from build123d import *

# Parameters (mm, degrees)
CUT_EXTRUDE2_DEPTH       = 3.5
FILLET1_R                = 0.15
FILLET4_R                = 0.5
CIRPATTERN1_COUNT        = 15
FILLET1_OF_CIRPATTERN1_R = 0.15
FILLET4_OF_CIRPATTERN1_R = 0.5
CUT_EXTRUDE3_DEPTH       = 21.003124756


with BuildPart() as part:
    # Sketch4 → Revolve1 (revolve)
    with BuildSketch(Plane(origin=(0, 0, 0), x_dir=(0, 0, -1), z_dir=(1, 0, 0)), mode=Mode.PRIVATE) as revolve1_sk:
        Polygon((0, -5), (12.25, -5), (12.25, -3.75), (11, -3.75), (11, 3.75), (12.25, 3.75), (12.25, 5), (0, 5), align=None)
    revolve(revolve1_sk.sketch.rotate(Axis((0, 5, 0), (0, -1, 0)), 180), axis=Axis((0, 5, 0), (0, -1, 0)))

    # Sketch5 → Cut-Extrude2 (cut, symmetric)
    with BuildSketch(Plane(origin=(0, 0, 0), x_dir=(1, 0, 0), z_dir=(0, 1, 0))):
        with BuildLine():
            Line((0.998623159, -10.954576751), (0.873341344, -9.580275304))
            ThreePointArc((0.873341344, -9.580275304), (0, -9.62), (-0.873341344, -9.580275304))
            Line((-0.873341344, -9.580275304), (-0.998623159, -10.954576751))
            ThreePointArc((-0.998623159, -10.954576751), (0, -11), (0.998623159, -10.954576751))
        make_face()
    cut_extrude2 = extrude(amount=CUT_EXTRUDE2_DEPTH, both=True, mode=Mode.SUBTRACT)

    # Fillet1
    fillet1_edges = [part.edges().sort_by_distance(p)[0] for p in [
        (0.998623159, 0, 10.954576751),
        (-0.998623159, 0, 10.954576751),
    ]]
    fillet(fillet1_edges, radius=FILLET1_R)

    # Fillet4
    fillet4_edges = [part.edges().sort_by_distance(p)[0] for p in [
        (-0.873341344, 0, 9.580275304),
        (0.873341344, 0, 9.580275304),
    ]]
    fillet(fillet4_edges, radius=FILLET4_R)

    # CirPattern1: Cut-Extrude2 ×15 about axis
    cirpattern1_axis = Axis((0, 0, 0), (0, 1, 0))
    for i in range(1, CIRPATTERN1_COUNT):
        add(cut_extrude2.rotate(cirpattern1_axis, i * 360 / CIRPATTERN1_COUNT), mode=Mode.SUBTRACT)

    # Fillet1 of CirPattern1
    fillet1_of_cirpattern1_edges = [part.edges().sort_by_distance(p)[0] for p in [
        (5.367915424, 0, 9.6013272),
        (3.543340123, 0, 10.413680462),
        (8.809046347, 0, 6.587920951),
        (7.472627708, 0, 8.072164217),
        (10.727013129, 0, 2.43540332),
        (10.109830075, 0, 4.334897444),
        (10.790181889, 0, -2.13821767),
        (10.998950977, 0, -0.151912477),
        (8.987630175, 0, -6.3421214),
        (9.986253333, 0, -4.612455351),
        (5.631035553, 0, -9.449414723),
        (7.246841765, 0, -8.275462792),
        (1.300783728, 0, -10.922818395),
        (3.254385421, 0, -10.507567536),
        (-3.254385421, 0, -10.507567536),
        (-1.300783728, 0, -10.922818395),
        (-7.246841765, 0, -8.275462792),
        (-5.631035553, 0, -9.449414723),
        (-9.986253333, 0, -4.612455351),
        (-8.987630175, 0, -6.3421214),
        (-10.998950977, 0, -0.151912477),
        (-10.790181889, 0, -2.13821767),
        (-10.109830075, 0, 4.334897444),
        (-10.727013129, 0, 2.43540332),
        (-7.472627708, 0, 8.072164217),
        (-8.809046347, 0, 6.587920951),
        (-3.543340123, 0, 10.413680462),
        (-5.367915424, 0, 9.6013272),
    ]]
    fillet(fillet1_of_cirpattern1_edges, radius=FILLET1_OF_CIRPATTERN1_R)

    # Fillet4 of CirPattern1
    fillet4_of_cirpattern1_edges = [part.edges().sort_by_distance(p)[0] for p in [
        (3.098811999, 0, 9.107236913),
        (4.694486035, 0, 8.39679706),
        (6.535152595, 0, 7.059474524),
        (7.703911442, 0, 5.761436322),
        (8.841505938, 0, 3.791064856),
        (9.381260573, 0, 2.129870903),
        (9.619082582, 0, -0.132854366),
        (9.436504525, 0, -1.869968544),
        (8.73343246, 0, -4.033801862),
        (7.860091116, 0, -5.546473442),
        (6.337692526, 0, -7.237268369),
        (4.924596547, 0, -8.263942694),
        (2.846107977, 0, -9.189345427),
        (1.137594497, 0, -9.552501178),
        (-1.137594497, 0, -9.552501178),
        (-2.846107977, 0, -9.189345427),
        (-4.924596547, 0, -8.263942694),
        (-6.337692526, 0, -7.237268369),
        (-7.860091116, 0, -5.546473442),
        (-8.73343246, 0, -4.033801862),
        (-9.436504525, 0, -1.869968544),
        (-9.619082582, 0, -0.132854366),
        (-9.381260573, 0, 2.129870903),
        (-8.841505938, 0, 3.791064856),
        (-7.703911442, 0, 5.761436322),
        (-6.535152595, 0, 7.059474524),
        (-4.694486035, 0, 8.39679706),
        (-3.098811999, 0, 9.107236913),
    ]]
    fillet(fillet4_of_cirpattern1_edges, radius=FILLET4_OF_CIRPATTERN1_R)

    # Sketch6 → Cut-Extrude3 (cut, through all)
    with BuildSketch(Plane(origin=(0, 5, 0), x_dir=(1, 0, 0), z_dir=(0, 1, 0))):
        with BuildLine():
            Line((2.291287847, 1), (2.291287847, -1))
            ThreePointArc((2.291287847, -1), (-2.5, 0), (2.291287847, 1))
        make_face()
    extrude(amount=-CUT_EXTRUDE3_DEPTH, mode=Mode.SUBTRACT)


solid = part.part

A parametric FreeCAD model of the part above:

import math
import FreeCAD as App
import Part
import Sketcher


def edges_at(feature, points):
    """Names of the edges that pass closest to the given points."""
    edges = feature.Shape.Edges
    near = lambda p: min(range(len(edges)), key=lambda i: edges[i].distToShape(Part.Vertex(*p))[0])
    return sorted({f"Edge{near(p) + 1}" for p in points})


def add_polygon(sketch, points):
    """Adds a closed chain of lines whose ends are joined by coincident constraints."""
    first, n = sketch.GeometryCount, len(points)
    for a, b in zip(points, points[1:] + points[:1]):
        sketch.addGeometry(Part.LineSegment(App.Vector(*a, 0), App.Vector(*b, 0)), False)
    for i in range(n):
        sketch.addConstraint(Sketcher.Constraint("Coincident", first + i, 2, first + (i + 1) % n, 1))

doc = App.newDocument("Part")
body = doc.addObject("PartDesign::Body", "Body")

sketch1 = body.newObject("Sketcher::SketchObject", "Sketch")
sketch1.AttachmentSupport = (doc.getObject("YZ_Plane"), [""])
sketch1.MapMode = "FlatFace"
add_polygon(sketch1, [(-5, 0), (-5, -12.2), (-3.8, -12.2), (-3.8, -11), (3.8, -11), (3.8, -12.2), (5, -12.2), (5, 0)])
sketch1.addConstraint([
    Sketcher.Constraint("Vertical", 0),
    Sketcher.Constraint("Horizontal", 1),
    Sketcher.Constraint("Vertical", 2),
    Sketcher.Constraint("Horizontal", 3),
    Sketcher.Constraint("Vertical", 4),
    Sketcher.Constraint("Horizontal", 5),
    Sketcher.Constraint("Vertical", 6),
    Sketcher.Constraint("Horizontal", 7),
    Sketcher.Constraint("Symmetric", 6, 2, 7, 2, -1, 1),
    Sketcher.Constraint("Symmetric", 1, 2, 4, 2, -2),
    Sketcher.Constraint("Equal", 5, 2),
    Sketcher.Constraint("DistanceX", 7, 2, 7, 1, 10.0),
    Sketcher.Constraint("DistanceX", 3, 1, 3, 2, 7.5),
    Sketcher.Constraint("DistanceY", 2, 2, -1, 1, 11.0),
])
revolution = body.newObject("PartDesign::Revolution", "Revolution")
revolution.Profile = sketch1
revolution.ReferenceAxis = (sketch1, ["H_Axis"])
revolution.Angle = 360

sketch2 = body.newObject("Sketcher::SketchObject", "Sketch001")
sketch2.AttachmentSupport = (doc.getObject("XZ_Plane"), [""])
sketch2.MapMode = "FlatFace"
sketch2.addGeometry([
    Part.LineSegment(App.Vector(1, 11, 0), App.Vector(0.9, 9.6, 0)),
    Part.ArcOfCircle(Part.Circle(App.Vector(0, 0, 0), App.Vector(0, 0, 1), 9.6), math.radians(84.79), math.radians(95.21)),
    Part.LineSegment(App.Vector(-0.9, 9.6, 0), App.Vector(-1, 11, 0)),
    Part.ArcOfCircle(Part.Circle(App.Vector(0, 0, 0), App.Vector(0, 0, 1), 11), math.radians(84.79), math.radians(95.21)),
], False)
sketch2.addConstraint([
    Sketcher.Constraint("Coincident", 0, 2, 1, 1),
    Sketcher.Constraint("Coincident", 1, 2, 2, 1),
    Sketcher.Constraint("Coincident", 2, 2, 3, 2),
    Sketcher.Constraint("Coincident", 3, 1, 0, 1),
    Sketcher.Constraint("Coincident", 1, 3, -1, 1),
    Sketcher.Constraint("Coincident", 3, 3, -1, 1),
    Sketcher.Constraint("Horizontal", 0, 2, 1, 2),
    Sketcher.Constraint("Horizontal", 2, 2, 3, 1),
    Sketcher.Constraint("Radius", 3, 11.0),
    Sketcher.Constraint("Radius", 1, 9.62),
    Sketcher.Constraint("DistanceY", 1, 2, 2, 2, 1.374301),
    Sketcher.Constraint("DistanceX", -1, 1, 0, 2, 0.873341),
])
pocket1 = body.newObject("PartDesign::Pocket", "Pocket")
pocket1.Profile = sketch2
pocket1.Length = 7
pocket1.Midplane = True
doc.recompute()

fillet = body.newObject("PartDesign::Fillet", "Fillet")
fillet.Base = (pocket1, edges_at(pocket1, [(0.999, 0, 10.955), (-0.999, 0, 10.955)]))
fillet.Radius = 0.15
doc.recompute()

fillet2 = body.newObject("PartDesign::Fillet", "Fillet001")
fillet2.Base = (fillet, edges_at(fillet, [(-0.873, 0, 9.58), (0.873, 0, 9.58)]))
fillet2.Radius = 0.5
doc.recompute()

polarpattern = body.newObject("PartDesign::PolarPattern", "PolarPattern")
polarpattern.Originals = [pocket1]
polarpattern.Axis = (doc.getObject("Y_Axis"), [""])
polarpattern.Angle = 360
polarpattern.Occurrences = 15
body.Tip = polarpattern
doc.recompute()

fillet3 = body.newObject("PartDesign::Fillet", "Fillet002")
fillet3.Base = (polarpattern, edges_at(polarpattern, [
    (5.368, 0, 9.601),
    (3.543, 0, 10.414),
    (8.809, 0, 6.588),
    (7.473, 0, 8.072),
    (10.727, 0, 2.435),
    (10.11, 0, 4.335),
    (10.79, 0, -2.138),
    (10.999, 0, -0.152),
    (8.988, 0, -6.342),
    (9.986, 0, -4.612),
    (5.631, 0, -9.449),
    (7.247, 0, -8.275),
    (1.301, 0, -10.923),
    (3.254, 0, -10.508),
    (-3.254, 0, -10.508),
    (-1.301, 0, -10.923),
    (-7.247, 0, -8.275),
    (-5.631, 0, -9.449),
    (-9.986, 0, -4.612),
    (-8.988, 0, -6.342),
    (-10.999, 0, -0.152),
    (-10.79, 0, -2.138),
    (-10.11, 0, 4.335),
    (-10.727, 0, 2.435),
    (-7.473, 0, 8.072),
    (-8.809, 0, 6.588),
    (-3.543, 0, 10.414),
    (-5.368, 0, 9.601),
]))
fillet3.Radius = 0.15
doc.recompute()

fillet4 = body.newObject("PartDesign::Fillet", "Fillet003")
fillet4.Base = (fillet3, edges_at(fillet3, [
    (3.099, 0, 9.107),
    (4.694, 0, 8.397),
    (6.535, 0, 7.059),
    (7.704, 0, 5.761),
    (8.842, 0, 3.791),
    (9.381, 0, 2.13),
    (9.619, 0, -0.133),
    (9.437, 0, -1.87),
    (8.733, 0, -4.034),
    (7.86, 0, -5.546),
    (6.338, 0, -7.237),
    (4.925, 0, -8.264),
    (2.846, 0, -9.189),
    (1.138, 0, -9.553),
    (-1.138, 0, -9.553),
    (-2.846, 0, -9.189),
    (-4.925, 0, -8.264),
    (-6.338, 0, -7.237),
    (-7.86, 0, -5.546),
    (-8.733, 0, -4.034),
    (-9.437, 0, -1.87),
    (-9.619, 0, -0.133),
    (-9.381, 0, 2.13),
    (-8.842, 0, 3.791),
    (-7.704, 0, 5.761),
    (-6.535, 0, 7.059),
    (-4.694, 0, 8.397),
    (-3.099, 0, 9.107),
]))
fillet4.Radius = 0.5

sketch3 = body.newObject("Sketcher::SketchObject", "Sketch002")
sketch3.AttachmentSupport = (doc.getObject("XZ_Plane"), [""])
sketch3.MapMode = "FlatFace"
sketch3.AttachmentOffset = App.Placement(App.Vector(0, 0, -5), App.Rotation())
sketch3.addGeometry([
    Part.LineSegment(App.Vector(2.3, 1, 0), App.Vector(2.3, -1, 0)),
    Part.ArcOfCircle(Part.Circle(App.Vector(0, 0, 0), App.Vector(0, 0, 1), 2.5), math.radians(24), math.radians(336)),
], False)
sketch3.addConstraint([
    Sketcher.Constraint("Coincident", 0, 1, 1, 1),
    Sketcher.Constraint("Coincident", 1, 2, 0, 2),
    Sketcher.Constraint("Vertical", 0),
    Sketcher.Constraint("Coincident", 1, 3, -1, 1),
    Sketcher.Constraint("Radius", 1, 2.5),
    Sketcher.Constraint("DistanceY", 0, 2, 0, 1, 2.0),
])
pocket2 = body.newObject("PartDesign::Pocket", "Pocket001")
pocket2.Profile = sketch3
pocket2.Type = "ThroughAll"
pocket2.Reversed = True

doc.recompute()
